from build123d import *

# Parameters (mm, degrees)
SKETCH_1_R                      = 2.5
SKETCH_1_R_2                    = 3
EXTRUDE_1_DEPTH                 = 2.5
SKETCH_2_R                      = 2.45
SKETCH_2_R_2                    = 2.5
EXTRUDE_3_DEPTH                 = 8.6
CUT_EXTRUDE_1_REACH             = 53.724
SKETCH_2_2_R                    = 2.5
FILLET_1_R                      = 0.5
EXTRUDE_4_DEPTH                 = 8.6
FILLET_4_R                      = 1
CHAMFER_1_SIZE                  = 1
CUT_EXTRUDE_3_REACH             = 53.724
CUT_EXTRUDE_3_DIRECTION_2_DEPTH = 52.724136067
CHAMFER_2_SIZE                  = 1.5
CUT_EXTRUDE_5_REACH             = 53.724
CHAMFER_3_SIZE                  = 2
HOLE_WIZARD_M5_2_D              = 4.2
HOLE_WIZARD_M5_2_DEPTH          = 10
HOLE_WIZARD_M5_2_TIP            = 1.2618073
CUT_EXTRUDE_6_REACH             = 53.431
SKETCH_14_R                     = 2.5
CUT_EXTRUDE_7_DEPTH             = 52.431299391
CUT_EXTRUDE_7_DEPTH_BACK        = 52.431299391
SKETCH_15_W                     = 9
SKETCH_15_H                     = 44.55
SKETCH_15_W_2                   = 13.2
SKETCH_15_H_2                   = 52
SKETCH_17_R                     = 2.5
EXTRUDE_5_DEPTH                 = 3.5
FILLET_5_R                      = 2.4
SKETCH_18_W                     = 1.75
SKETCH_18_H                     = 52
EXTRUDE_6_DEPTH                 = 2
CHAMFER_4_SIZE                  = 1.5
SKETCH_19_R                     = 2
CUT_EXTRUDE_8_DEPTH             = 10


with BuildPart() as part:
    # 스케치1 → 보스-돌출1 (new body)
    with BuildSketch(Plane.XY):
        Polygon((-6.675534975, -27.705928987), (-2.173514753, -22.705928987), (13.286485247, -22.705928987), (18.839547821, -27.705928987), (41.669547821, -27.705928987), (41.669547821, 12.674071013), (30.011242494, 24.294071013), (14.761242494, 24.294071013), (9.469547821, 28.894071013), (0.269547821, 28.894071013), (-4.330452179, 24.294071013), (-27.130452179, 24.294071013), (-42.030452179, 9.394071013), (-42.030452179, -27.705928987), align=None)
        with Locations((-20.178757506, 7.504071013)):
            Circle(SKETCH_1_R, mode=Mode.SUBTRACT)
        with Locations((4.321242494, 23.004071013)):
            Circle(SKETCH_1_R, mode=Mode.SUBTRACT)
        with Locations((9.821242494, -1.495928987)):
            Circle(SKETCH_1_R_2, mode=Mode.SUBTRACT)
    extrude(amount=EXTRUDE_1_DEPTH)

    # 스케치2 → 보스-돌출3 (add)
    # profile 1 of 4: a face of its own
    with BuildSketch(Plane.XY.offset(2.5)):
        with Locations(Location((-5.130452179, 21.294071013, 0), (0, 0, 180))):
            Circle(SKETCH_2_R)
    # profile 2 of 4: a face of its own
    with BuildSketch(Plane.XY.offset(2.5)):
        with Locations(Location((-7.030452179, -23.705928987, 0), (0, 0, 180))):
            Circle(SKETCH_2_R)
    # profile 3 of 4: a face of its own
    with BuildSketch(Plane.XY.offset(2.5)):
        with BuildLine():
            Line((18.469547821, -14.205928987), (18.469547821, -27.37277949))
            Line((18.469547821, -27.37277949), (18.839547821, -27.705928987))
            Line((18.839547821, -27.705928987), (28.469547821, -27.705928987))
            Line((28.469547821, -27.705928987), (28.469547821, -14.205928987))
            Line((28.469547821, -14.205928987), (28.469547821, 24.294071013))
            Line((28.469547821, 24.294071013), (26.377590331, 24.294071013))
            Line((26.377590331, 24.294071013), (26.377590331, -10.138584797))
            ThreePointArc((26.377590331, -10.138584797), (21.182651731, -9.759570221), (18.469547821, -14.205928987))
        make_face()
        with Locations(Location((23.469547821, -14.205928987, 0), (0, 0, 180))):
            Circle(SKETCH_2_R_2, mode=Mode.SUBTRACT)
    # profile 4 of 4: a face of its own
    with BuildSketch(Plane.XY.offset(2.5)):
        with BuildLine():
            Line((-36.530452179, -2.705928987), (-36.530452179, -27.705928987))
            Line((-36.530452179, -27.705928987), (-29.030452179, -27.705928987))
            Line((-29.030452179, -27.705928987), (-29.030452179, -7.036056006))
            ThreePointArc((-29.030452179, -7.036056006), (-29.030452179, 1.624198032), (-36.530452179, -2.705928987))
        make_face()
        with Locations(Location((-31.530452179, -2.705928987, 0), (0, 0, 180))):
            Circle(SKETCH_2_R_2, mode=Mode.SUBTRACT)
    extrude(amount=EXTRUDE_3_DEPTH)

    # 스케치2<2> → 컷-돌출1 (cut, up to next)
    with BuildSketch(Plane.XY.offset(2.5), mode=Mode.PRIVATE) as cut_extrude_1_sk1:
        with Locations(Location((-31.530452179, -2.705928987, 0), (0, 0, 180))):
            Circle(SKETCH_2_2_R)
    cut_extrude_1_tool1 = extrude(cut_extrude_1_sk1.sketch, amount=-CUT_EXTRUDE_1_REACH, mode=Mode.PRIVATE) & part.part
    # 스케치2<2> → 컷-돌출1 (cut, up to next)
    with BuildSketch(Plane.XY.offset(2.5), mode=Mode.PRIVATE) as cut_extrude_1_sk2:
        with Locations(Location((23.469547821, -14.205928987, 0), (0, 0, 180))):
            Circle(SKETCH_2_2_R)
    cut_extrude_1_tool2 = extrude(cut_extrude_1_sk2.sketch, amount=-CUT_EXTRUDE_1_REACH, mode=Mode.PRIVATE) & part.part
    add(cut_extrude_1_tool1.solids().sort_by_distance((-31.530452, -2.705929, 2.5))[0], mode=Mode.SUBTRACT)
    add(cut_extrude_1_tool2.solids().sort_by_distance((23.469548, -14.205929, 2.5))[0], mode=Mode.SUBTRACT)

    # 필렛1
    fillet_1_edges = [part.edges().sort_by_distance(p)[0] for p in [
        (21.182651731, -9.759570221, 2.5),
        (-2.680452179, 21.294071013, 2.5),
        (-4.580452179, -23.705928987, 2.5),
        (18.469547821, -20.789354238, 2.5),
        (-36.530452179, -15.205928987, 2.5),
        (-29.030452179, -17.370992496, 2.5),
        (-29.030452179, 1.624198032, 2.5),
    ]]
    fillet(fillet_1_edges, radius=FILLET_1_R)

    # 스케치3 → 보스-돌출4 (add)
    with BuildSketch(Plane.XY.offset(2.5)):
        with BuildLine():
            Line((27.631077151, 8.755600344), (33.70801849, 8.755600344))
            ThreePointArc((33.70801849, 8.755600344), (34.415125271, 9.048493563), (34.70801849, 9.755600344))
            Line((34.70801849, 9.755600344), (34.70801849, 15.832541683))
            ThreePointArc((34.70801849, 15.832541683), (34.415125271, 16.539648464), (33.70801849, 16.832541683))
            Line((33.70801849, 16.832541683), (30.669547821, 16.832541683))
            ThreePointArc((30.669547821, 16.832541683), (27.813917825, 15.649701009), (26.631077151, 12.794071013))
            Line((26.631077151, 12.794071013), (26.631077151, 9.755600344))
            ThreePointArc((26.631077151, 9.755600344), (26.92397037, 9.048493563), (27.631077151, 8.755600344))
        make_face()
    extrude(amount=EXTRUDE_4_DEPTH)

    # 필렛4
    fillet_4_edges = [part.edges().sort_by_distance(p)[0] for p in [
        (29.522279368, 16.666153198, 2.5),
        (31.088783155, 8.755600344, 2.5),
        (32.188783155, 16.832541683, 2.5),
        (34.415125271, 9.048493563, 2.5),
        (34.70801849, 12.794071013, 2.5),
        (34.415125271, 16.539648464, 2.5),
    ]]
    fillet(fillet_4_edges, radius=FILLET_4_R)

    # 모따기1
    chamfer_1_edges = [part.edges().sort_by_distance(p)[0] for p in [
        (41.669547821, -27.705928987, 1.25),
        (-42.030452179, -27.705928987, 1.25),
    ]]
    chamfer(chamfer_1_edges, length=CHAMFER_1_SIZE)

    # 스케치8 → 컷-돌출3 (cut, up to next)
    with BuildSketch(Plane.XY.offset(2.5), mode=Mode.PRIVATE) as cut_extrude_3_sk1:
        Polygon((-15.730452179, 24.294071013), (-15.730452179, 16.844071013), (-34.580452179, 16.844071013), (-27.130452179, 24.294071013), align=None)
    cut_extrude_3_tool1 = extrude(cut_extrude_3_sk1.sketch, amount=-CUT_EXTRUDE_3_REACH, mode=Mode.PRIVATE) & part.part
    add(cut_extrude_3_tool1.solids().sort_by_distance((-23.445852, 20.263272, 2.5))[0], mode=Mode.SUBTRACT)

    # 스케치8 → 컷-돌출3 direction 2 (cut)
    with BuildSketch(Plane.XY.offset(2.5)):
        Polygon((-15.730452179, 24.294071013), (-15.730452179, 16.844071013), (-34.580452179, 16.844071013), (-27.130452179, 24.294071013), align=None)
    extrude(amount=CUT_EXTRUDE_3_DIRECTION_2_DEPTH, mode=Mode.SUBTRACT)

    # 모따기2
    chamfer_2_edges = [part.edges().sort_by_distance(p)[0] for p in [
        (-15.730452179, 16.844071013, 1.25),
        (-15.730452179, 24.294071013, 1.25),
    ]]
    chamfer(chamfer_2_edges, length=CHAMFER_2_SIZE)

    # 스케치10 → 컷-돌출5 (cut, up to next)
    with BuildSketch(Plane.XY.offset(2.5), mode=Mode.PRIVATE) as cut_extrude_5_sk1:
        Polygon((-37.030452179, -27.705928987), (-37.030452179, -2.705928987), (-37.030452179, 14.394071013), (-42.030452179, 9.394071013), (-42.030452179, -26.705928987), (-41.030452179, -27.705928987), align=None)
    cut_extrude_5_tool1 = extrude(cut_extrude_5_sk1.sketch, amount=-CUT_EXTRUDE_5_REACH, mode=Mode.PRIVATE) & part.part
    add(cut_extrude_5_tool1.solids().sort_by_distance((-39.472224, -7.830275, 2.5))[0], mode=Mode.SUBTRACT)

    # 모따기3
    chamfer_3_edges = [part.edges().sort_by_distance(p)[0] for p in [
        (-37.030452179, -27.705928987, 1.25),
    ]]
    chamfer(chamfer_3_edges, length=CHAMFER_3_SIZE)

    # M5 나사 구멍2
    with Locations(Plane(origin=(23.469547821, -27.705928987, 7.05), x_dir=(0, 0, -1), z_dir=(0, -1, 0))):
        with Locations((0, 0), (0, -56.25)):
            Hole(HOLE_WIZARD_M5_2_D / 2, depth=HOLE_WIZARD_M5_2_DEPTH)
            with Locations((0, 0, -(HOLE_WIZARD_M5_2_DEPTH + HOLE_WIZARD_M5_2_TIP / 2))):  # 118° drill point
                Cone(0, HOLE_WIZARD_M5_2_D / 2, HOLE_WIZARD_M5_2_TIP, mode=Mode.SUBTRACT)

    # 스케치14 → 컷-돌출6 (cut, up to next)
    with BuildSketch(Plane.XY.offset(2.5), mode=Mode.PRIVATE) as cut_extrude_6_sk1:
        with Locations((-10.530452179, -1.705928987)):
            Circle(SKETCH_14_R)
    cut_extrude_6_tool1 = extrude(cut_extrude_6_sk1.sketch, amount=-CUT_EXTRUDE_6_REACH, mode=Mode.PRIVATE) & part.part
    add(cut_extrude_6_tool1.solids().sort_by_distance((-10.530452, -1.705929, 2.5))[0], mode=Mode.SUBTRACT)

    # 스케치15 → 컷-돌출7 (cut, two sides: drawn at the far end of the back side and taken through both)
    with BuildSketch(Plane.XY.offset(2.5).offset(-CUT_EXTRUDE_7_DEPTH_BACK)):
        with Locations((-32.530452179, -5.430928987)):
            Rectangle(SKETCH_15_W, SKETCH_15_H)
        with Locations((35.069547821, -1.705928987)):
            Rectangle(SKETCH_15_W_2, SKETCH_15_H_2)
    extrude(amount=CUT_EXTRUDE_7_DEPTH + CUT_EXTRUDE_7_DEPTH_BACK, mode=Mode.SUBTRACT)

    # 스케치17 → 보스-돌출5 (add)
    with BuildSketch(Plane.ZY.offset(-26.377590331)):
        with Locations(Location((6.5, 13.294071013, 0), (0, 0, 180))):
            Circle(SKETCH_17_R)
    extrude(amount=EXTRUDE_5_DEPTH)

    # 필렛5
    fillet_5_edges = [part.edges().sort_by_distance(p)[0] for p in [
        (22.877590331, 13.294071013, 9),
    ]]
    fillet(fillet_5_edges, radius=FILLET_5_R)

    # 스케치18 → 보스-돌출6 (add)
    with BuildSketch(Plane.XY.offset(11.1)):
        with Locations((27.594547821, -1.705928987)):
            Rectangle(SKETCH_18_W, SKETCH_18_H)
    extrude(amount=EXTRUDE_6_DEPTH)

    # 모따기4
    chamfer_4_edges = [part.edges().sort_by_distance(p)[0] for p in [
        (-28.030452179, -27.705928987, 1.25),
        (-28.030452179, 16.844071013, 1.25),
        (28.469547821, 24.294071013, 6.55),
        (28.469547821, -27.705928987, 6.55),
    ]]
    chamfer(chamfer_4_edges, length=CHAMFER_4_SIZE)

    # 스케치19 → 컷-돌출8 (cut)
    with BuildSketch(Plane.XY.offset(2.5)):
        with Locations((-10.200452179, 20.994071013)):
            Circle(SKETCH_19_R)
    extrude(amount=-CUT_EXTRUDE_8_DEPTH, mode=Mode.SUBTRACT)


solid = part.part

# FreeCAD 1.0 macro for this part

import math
import FreeCAD as App
import Part
import Sketcher

V = App.Vector
Q = App.Units.Quantity


def edges_at(feature, points):
    """Names of the edges that pass closest to the given points."""
    edges = feature.Shape.Edges
    near = lambda p: min(range(len(edges)), key=lambda i: edges[i].distToShape(Part.Vertex(*p))[0])
    return sorted({f"Edge{near(p) + 1}" for p in points})

doc = App.newDocument("Part")
body = doc.addObject("PartDesign::Body", "Body")

# Sketch on XY plane
sketch1 = body.newObject("Sketcher::SketchObject", "Sketch")
sketch1.AttachmentSupport = (doc.getObject("XY_Plane"), [""])
sketch1.MapMode = "FlatFace"
sketch1.addGeometry([
    Part.LineSegment(V(-6.7, -27.7, 0), V(-2.2, -22.7, 0)),  # 0
    Part.LineSegment(V(-2.2, -22.7, 0), V(13.3, -22.7, 0)),  # 1
    Part.LineSegment(V(13.3, -22.7, 0), V(18.8, -27.7, 0)),  # 2
    Part.LineSegment(V(18.8, -27.7, 0), V(41.7, -27.7, 0)),  # 3
    Part.LineSegment(V(41.7, -27.7, 0), V(41.7, 12.7, 0)),  # 4
    Part.LineSegment(V(41.7, 12.7, 0), V(30, 24.3, 0)),  # 5
    Part.LineSegment(V(30, 24.3, 0), V(14.8, 24.3, 0)),  # 6
    Part.LineSegment(V(14.8, 24.3, 0), V(9.5, 28.9, 0)),  # 7
    Part.LineSegment(V(9.5, 28.9, 0), V(0.3, 28.9, 0)),  # 8
    Part.LineSegment(V(0.3, 28.9, 0), V(-4.3, 24.3, 0)),  # 9
    Part.LineSegment(V(-4.3, 24.3, 0), V(-27.1, 24.3, 0)),  # 10
    Part.LineSegment(V(-27.1, 24.3, 0), V(-42, 9.4, 0)),  # 11
    Part.LineSegment(V(-42, 9.4, 0), V(-42, -27.7, 0)),  # 12
    Part.LineSegment(V(-42, -27.7, 0), V(-6.7, -27.7, 0)),  # 13
    Part.Circle(V(-20.2, 7.5, 0), V(0, 0, 1), 2.5),  # 14
    Part.Circle(V(9.8, -1.5, 0), V(0, 0, 1), 3),  # 15
    Part.Circle(V(4.3, 23, 0), V(0, 0, 1), 2.5),  # 16
], False)
sketch1.addConstraint([
    Sketcher.Constraint("Coincident", 0, 2, 1, 1),
    Sketcher.Constraint("Coincident", 1, 2, 2, 1),
    Sketcher.Constraint("Coincident", 2, 2, 3, 1),
    Sketcher.Constraint("Coincident", 3, 2, 4, 1),
    Sketcher.Constraint("Coincident", 4, 2, 5, 1),
    Sketcher.Constraint("Coincident", 5, 2, 6, 1),
    Sketcher.Constraint("Coincident", 6, 2, 7, 1),
    Sketcher.Constraint("Coincident", 7, 2, 8, 1),
    Sketcher.Constraint("Coincident", 8, 2, 9, 1),
    Sketcher.Constraint("Coincident", 9, 2, 10, 1),
    Sketcher.Constraint("Coincident", 10, 2, 11, 1),
    Sketcher.Constraint("Coincident", 11, 2, 12, 1),
    Sketcher.Constraint("Coincident", 12, 2, 13, 1),
    Sketcher.Constraint("Coincident", 13, 2, 0, 1),
    Sketcher.Constraint("Horizontal", 1),
    Sketcher.Constraint("Horizontal", 3),
    Sketcher.Constraint("Vertical", 4),
    Sketcher.Constraint("Horizontal", 6),
    Sketcher.Constraint("Horizontal", 8),
    Sketcher.Constraint("Horizontal", 10),
    Sketcher.Constraint("Vertical", 12),
    Sketcher.Constraint("Horizontal", 13),
    Sketcher.Constraint("Equal", 14, 16),
    Sketcher.Constraint("Perpendicular", 0, 2),
    Sketcher.Constraint("Parallel", 9, 11),
    Sketcher.Constraint("Horizontal", 6, 2, 9, 2),
    Sketcher.Constraint("Horizontal", 3, 2, 12, 2),
    Sketcher.Constraint("Diameter", 14, 5.0),
    Sketcher.Constraint("Diameter", 15, 6.0),
    Sketcher.Constraint("Angle", 0, Q("48 deg")),
    Sketcher.Constraint("Angle", 7, Q("139 deg")),
    Sketcher.Constraint("Angle", 9, Q("-135 deg")),
    Sketcher.Constraint("DistanceX", 8, 2, 8, 1, 9.2),
    Sketcher.Constraint("DistanceX", 10, 2, 10, 1, 22.8),
    Sketcher.Constraint("DistanceY", 12, 2, 12, 1, 37.1),
    Sketcher.Constraint("DistanceX", 14, 3, 15, 3, 30.0),
    Sketcher.Constraint("DistanceY", 15, 3, 14, 3, 9.0),
    Sketcher.Constraint("DistanceY", 2, 2, 1, 2, 5.0),
    Sketcher.Constraint("DistanceY", 1, 2, 5, 2, 47.0),
    Sketcher.Constraint("DistanceX", 1, 1, 1, 2, 15.46),
    Sketcher.Constraint("DistanceX", 3, 1, 3, 2, 22.83),
    Sketcher.Constraint("DistanceX", 6, 2, 6, 1, 15.25),
    Sketcher.Constraint("DistanceY", 4, 1, 4, 2, 40.38),
    Sketcher.Constraint("DistanceX", 16, 3, 15, 3, 5.5),
    Sketcher.Constraint("DistanceY", 15, 3, 16, 3, 24.5),
    Sketcher.Constraint("DistanceY", 6, 2, 7, 2, 4.6),
    Sketcher.Constraint("DistanceX", 7, 2, 4, 2, 32.2),
    Sketcher.Constraint("DistanceY", 0, 2, 15, 3, 21.21),
    Sketcher.Constraint("DistanceX", 16, 3, 5, 2, 25.69),
    Sketcher.Constraint("DistanceY", -1, 1, 14, 3, 7.504071),
    Sketcher.Constraint("DistanceX", 14, 3, -1, 1, 20.178758),
])
pad1 = body.newObject("PartDesign::Pad", "Pad")
pad1.Profile = sketch1
pad1.Length = 2.5

# Sketch on XY plane
sketch2 = body.newObject("Sketcher::SketchObject", "Sketch001")
sketch2.AttachmentSupport = (doc.getObject("XY_Plane"), [""])
sketch2.MapMode = "FlatFace"
sketch2.AttachmentOffset = App.Placement(V(0, 0, 2.5), App.Rotation())
sketch2.addGeometry([
    Part.Circle(V(-5.13, 21.29, 0), V(0, 0, 1), 2.45),  # 0
    Part.Circle(V(-7.03, -23.71, 0), V(0, 0, 1), 2.45),  # 1
    Part.LineSegment(V(18.47, -14.21, 0), V(18.47, -27.37, 0)),  # 2
    Part.LineSegment(V(18.47, -27.37, 0), V(18.84, -27.71, 0)),  # 3
    Part.LineSegment(V(18.84, -27.71, 0), V(28.47, -27.71, 0)),  # 4
    Part.LineSegment(V(28.47, -27.71, 0), V(28.47, 24.29, 0)),  # 5
    Part.LineSegment(V(28.47, 24.29, 0), V(26.38, 24.29, 0)),  # 6
    Part.LineSegment(V(26.38, 24.29, 0), V(26.38, -10.14, 0)),  # 7
    Part.ArcOfCircle(Part.Circle(V(23.47, -14.21, 0), V(0, 0, 1), 5), math.radians(54), math.radians(180)),  # 8
    Part.Circle(V(23.47, -14.21, 0), V(0, 0, 1), 2.5),  # 9
    Part.LineSegment(V(-36.53, -2.71, 0), V(-36.53, -27.71, 0)),  # 10
    Part.LineSegment(V(-36.53, -27.71, 0), V(-29.03, -27.71, 0)),  # 11
    Part.LineSegment(V(-29.03, -27.71, 0), V(-29.03, -7.04, 0)),  # 12
    Part.ArcOfCircle(Part.Circle(V(-31.53, -2.71, 0), V(0, 0, 1), 5), math.radians(-60), math.radians(180)),  # 13
    Part.Circle(V(-31.53, -2.71, 0), V(0, 0, 1), 2.5),  # 14
], False)
sketch2.addConstraint([
    Sketcher.Constraint("Coincident", 2, 2, 3, 1),
    Sketcher.Constraint("Coincident", 3, 2, 4, 1),
    Sketcher.Constraint("Coincident", 4, 2, 5, 1),
    Sketcher.Constraint("Coincident", 5, 2, 6, 1),
    Sketcher.Constraint("Coincident", 6, 2, 7, 1),
    Sketcher.Constraint("Coincident", 7, 2, 8, 1),
    Sketcher.Constraint("Tangent", 8, 2, 2, 1),
    Sketcher.Constraint("Coincident", 10, 2, 11, 1),
    Sketcher.Constraint("Coincident", 11, 2, 12, 1),
    Sketcher.Constraint("Coincident", 12, 2, 13, 1),
    Sketcher.Constraint("Tangent", 13, 2, 10, 1),
    Sketcher.Constraint("Vertical", 2),
    Sketcher.Constraint("Horizontal", 4),
    Sketcher.Constraint("Vertical", 5),
    Sketcher.Constraint("Horizontal", 6),
    Sketcher.Constraint("Vertical", 7),
    Sketcher.Constraint("Vertical", 10),
    Sketcher.Constraint("Horizontal", 11),
    Sketcher.Constraint("Vertical", 12),
    Sketcher.Constraint("Coincident", 9, 3, 8, 3),
    Sketcher.Constraint("Coincident", 14, 3, 13, 3),
    Sketcher.Constraint("Equal", 0, 1),
    Sketcher.Constraint("Equal", 8, 13),
    Sketcher.Constraint("Equal", 9, 14),
    Sketcher.Constraint("Horizontal", 4, 2, 10, 2),
    Sketcher.Constraint("Diameter", 9, 5.0),
    Sketcher.Constraint("Radius", 8, 5.0),
    Sketcher.Constraint("Diameter", 0, 4.9),
    Sketcher.Constraint("DistanceY", 5, 1, 5, 2, 52.0),
    Sketcher.Constraint("DistanceY", 10, 2, 10, 1, 25.0),
    Sketcher.Constraint("Angle", 3, Q("-42 deg")),
    Sketcher.Constraint("DistanceX", 11, 1, 11, 2, 7.5),
    Sketcher.Constraint("DistanceY", 1, 3, 0, 3, 45.0),
    Sketcher.Constraint("DistanceY", 1, 3, 13, 3, 21.0),
    Sketcher.Constraint("DistanceX", 13, 3, 8, 3, 55.0),
    Sketcher.Constraint("DistanceX", 2, 2, 4, 2, 10.0),
    Sketcher.Constraint("DistanceX", 11, 2, 1, 3, 22.0),
    Sketcher.Constraint("DistanceX", 4, 1, 4, 2, 9.63),
    Sketcher.Constraint("DistanceX", 1, 3, 0, 3, 1.9),
    Sketcher.Constraint("DistanceY", 1, 3, 8, 3, 9.5),
    Sketcher.Constraint("DistanceX", 6, 2, 6, 1, 2.091957),
    Sketcher.Constraint("DistanceY", -1, 1, 0, 3, 21.294071),
    Sketcher.Constraint("DistanceX", -1, 1, 6, 2, 26.37759),
])
pad2 = body.newObject("PartDesign::Pad", "Pad001")
pad2.Profile = sketch2
pad2.Length = 8.6

# Sketch on XY plane
sketch3 = body.newObject("Sketcher::SketchObject", "Sketch002")
sketch3.AttachmentSupport = (doc.getObject("XY_Plane"), [""])
sketch3.MapMode = "FlatFace"
sketch3.AttachmentOffset = App.Placement(V(0, 0, 2.5), App.Rotation())
sketch3.addGeometry(Part.Circle(V(-31.5, -2.7, 0), V(0, 0, 1), 2.5), False)
sketch3.addConstraint([
    Sketcher.Constraint("Diameter", 0, 5.0),
    Sketcher.Constraint("DistanceY", 0, 3, -1, 1, 2.705929),
    Sketcher.Constraint("DistanceX", 0, 3, -1, 1, 31.530452),
])
pocket1 = body.newObject("PartDesign::Pocket", "Pocket")
pocket1.Profile = sketch3
pocket1.Type = "UpToFirst"

# Sketch on XY plane
sketch4 = body.newObject("Sketcher::SketchObject", "Sketch003")
sketch4.AttachmentSupport = (doc.getObject("XY_Plane"), [""])
sketch4.MapMode = "FlatFace"
sketch4.AttachmentOffset = App.Placement(V(0, 0, 2.5), App.Rotation())
sketch4.addGeometry(Part.Circle(V(23.5, -14.2, 0), V(0, 0, 1), 2.5), False)
sketch4.addConstraint([
    Sketcher.Constraint("Diameter", 0, 5.0),
    Sketcher.Constraint("DistanceY", 0, 3, -1, 1, 14.205929),
    Sketcher.Constraint("DistanceX", -1, 1, 0, 3, 23.469548),
])
pocket2 = body.newObject("PartDesign::Pocket", "Pocket001")
pocket2.Profile = sketch4
pocket2.Type = "UpToFirst"
doc.recompute()

fillet = body.newObject("PartDesign::Fillet", "Fillet")
fillet.Base = (pocket2, edges_at(pocket2, [
    (21.183, -9.76, 2.5),
    (-2.68, 21.294, 2.5),
    (-4.58, -23.706, 2.5),
    (18.47, -20.789, 2.5),
    (-36.53, -15.206, 2.5),
    (-29.03, -17.371, 2.5),
    (-29.03, 1.624, 2.5),
]))
fillet.Radius = 0.5

# Sketch on XY plane
sketch5 = body.newObject("Sketcher::SketchObject", "Sketch004")
sketch5.AttachmentSupport = (doc.getObject("XY_Plane"), [""])
sketch5.MapMode = "FlatFace"
sketch5.AttachmentOffset = App.Placement(V(0, 0, 2.5), App.Rotation())
sketch5.addGeometry([
    Part.LineSegment(V(27.6, 8.8, 0), V(33.7, 8.8, 0)),  # 0
    Part.ArcOfCircle(Part.Circle(V(33.7, 9.8, 0), V(0, 0, 1), 1), math.radians(-90), math.radians(0)),  # 1
    Part.LineSegment(V(34.7, 9.8, 0), V(34.7, 15.8, 0)),  # 2
    Part.ArcOfCircle(Part.Circle(V(33.7, 15.8, 0), V(0, 0, 1), 1), math.radians(0), math.radians(90)),  # 3
    Part.LineSegment(V(33.7, 16.8, 0), V(30.7, 16.8, 0)),  # 4
    Part.ArcOfCircle(Part.Circle(V(30.7, 12.8, 0), V(0, 0, 1), 4), math.radians(90), math.radians(180)),  # 5
    Part.LineSegment(V(26.6, 12.8, 0), V(26.6, 9.8, 0)),  # 6
    Part.ArcOfCircle(Part.Circle(V(27.6, 9.8, 0), V(0, 0, 1), 1), math.radians(-180), math.radians(-90)),  # 7
], False)
sketch5.addConstraint([
    Sketcher.Constraint("Tangent", 0, 2, 1, 1),
    Sketcher.Constraint("Tangent", 1, 2, 2, 1),
    Sketcher.Constraint("Tangent", 2, 2, 3, 1),
    Sketcher.Constraint("Tangent", 3, 2, 4, 1),
    Sketcher.Constraint("Tangent", 4, 2, 5, 1),
    Sketcher.Constraint("Tangent", 5, 2, 6, 1),
    Sketcher.Constraint("Tangent", 6, 2, 7, 1),
    Sketcher.Constraint("Tangent", 7, 2, 0, 1),
    Sketcher.Constraint("Horizontal", 0),
    Sketcher.Constraint("Vertical", 2),
    Sketcher.Constraint("Horizontal", 4),
    Sketcher.Constraint("Vertical", 6),
    Sketcher.Constraint("Equal", 1, 3),
    Sketcher.Constraint("Equal", 3, 7),
    Sketcher.Constraint("Equal", 0, 2),
    Sketcher.Constraint("Radius", 1, 1.0),
    Sketcher.Constraint("Radius", 5, 4.038471),
    Sketcher.Constraint("DistanceX", 0, 1, 0, 2, 6.076941),
    Sketcher.Constraint("DistanceY", -1, 1, 1, 3, 9.7556),
    Sketcher.Constraint("DistanceX", -1, 1, 1, 3, 33.708018),
])
pad3 = body.newObject("PartDesign::Pad", "Pad002")
pad3.Profile = sketch5
pad3.Length = 8.6
doc.recompute()

fillet2 = body.newObject("PartDesign::Fillet", "Fillet001")
fillet2.Base = (pad3, edges_at(pad3, [
    (29.522, 16.666, 2.5),
    (31.089, 8.756, 2.5),
    (32.189, 16.833, 2.5),
    (34.415, 9.048, 2.5),
    (34.708, 12.794, 2.5),
    (34.415, 16.54, 2.5),
]))
fillet2.Radius = 1
doc.recompute()

chamfer = body.newObject("PartDesign::Chamfer", "Chamfer")
chamfer.Base = (fillet2, edges_at(fillet2, [(41.67, -27.706, 1.25), (-42.03, -27.706, 1.25)]))
chamfer.Size = 1

# Sketch on XY plane
sketch6 = body.newObject("Sketcher::SketchObject", "Sketch005")
sketch6.AttachmentSupport = (doc.getObject("XY_Plane"), [""])
sketch6.MapMode = "FlatFace"
sketch6.AttachmentOffset = App.Placement(V(0, 0, 2.5), App.Rotation())
sketch6.addGeometry([
    Part.LineSegment(V(-16, 17, 0), V(-16, 24, 0)),
    Part.LineSegment(V(-16, 24, 0), V(-27, 24, 0)),
    Part.LineSegment(V(-27, 24, 0), V(-35, 17, 0)),
    Part.LineSegment(V(-35, 17, 0), V(-16, 17, 0)),
], False)
sketch6.addConstraint([
    Sketcher.Constraint("Coincident", 0, 2, 1, 1),
    Sketcher.Constraint("Coincident", 1, 2, 2, 1),
    Sketcher.Constraint("Coincident", 2, 2, 3, 1),
    Sketcher.Constraint("Coincident", 3, 2, 0, 1),
    Sketcher.Constraint("Vertical", 0),
    Sketcher.Constraint("Horizontal", 1),
    Sketcher.Constraint("Horizontal", 3),
    Sketcher.Constraint("Angle", 2, Q("-135 deg")),
    Sketcher.Constraint("DistanceX", 1, 2, 1, 1, 11.4),
    Sketcher.Constraint("DistanceX", 3, 1, 3, 2, 18.85),
    Sketcher.Constraint("DistanceY", -1, 1, 0, 2, 24.294071),
    Sketcher.Constraint("DistanceX", 0, 2, -1, 1, 15.730452),
])
pocket3 = body.newObject("PartDesign::Pocket", "Pocket002")
pocket3.Profile = sketch6
pocket3.Type = "UpToFirst"

# Sketch on XY plane
sketch7 = body.newObject("Sketcher::SketchObject", "Sketch006")
sketch7.AttachmentSupport = (doc.getObject("XY_Plane"), [""])
sketch7.MapMode = "FlatFace"
sketch7.AttachmentOffset = App.Placement(V(0, 0, 2.5), App.Rotation())
sketch7.addGeometry([
    Part.LineSegment(V(-16, 17, 0), V(-16, 24, 0)),
    Part.LineSegment(V(-16, 24, 0), V(-27, 24, 0)),
    Part.LineSegment(V(-27, 24, 0), V(-35, 17, 0)),
    Part.LineSegment(V(-35, 17, 0), V(-16, 17, 0)),
], False)
sketch7.addConstraint([
    Sketcher.Constraint("Coincident", 0, 2, 1, 1),
    Sketcher.Constraint("Coincident", 1, 2, 2, 1),
    Sketcher.Constraint("Coincident", 2, 2, 3, 1),
    Sketcher.Constraint("Coincident", 3, 2, 0, 1),
    Sketcher.Constraint("Vertical", 0),
    Sketcher.Constraint("Horizontal", 1),
    Sketcher.Constraint("Horizontal", 3),
    Sketcher.Constraint("Angle", 2, Q("-135 deg")),
    Sketcher.Constraint("DistanceX", 1, 2, 1, 1, 11.4),
    Sketcher.Constraint("DistanceX", 3, 1, 3, 2, 18.85),
    Sketcher.Constraint("DistanceY", -1, 1, 0, 2, 24.294071),
    Sketcher.Constraint("DistanceX", 0, 2, -1, 1, 15.730452),
])
pocket4 = body.newObject("PartDesign::Pocket", "Pocket003")
pocket4.Profile = sketch7
pocket4.Length = 52.724136
pocket4.Reversed = True
doc.recompute()

chamfer2 = body.newObject("PartDesign::Chamfer", "Chamfer001")
chamfer2.Base = (pocket4, edges_at(pocket4, [(-15.73, 16.844, 1.25), (-15.73, 24.294, 1.25)]))
chamfer2.Size = 1.5

# Sketch on XY plane
sketch8 = body.newObject("Sketcher::SketchObject", "Sketch007")
sketch8.AttachmentSupport = (doc.getObject("XY_Plane"), [""])
sketch8.MapMode = "FlatFace"
sketch8.AttachmentOffset = App.Placement(V(0, 0, 2.5), App.Rotation())
sketch8.addGeometry([
    Part.LineSegment(V(-37, -27.7, 0), V(-37, 14.4, 0)),  # 0
    Part.LineSegment(V(-37, 14.4, 0), V(-42, 9.4, 0)),  # 1
    Part.LineSegment(V(-42, 9.4, 0), V(-42, -26.7, 0)),  # 2
    Part.LineSegment(V(-42, -26.7, 0), V(-41, -27.7, 0)),  # 3
    Part.LineSegment(V(-41, -27.7, 0), V(-37, -27.7, 0)),  # 4
], False)
sketch8.addConstraint([
    Sketcher.Constraint("Coincident", 0, 2, 1, 1),
    Sketcher.Constraint("Coincident", 1, 2, 2, 1),
    Sketcher.Constraint("Coincident", 2, 2, 3, 1),
    Sketcher.Constraint("Coincident", 3, 2, 4, 1),
    Sketcher.Constraint("Coincident", 4, 2, 0, 1),
    Sketcher.Constraint("Vertical", 0),
    Sketcher.Constraint("Vertical", 2),
    Sketcher.Constraint("Horizontal", 4),
    Sketcher.Constraint("Perpendicular", 1, 3),
    Sketcher.Constraint("DistanceX", 4, 1, 4, 2, 4.0),
    Sketcher.Constraint("Angle", 1, Q("-135 deg")),
    Sketcher.Constraint("DistanceY", 0, 1, 0, 2, 42.1),
    Sketcher.Constraint("DistanceY", 2, 2, 2, 1, 36.1),
    Sketcher.Constraint("DistanceY", -1, 1, 0, 2, 14.394071),
    Sketcher.Constraint("DistanceX", 0, 2, -1, 1, 37.030452),
])
pocket5 = body.newObject("PartDesign::Pocket", "Pocket004")
pocket5.Profile = sketch8
pocket5.Type = "UpToFirst"
doc.recompute()

chamfer3 = body.newObject("PartDesign::Chamfer", "Chamfer002")
chamfer3.Base = (pocket5, edges_at(pocket5, [(-37.03, -27.706, 1.25)]))
chamfer3.Size = 2

# Sketch on XZ plane
sketch9 = body.newObject("Sketcher::SketchObject", "Sketch008")
sketch9.AttachmentSupport = (doc.getObject("XZ_Plane"), [""])
sketch9.MapMode = "FlatFace"
sketch9.AttachmentOffset = App.Placement(V(0, 0, 27.705929), App.Rotation())
sketch9.addGeometry([
    Part.Circle(V(23.5, 7, 0), V(0, 0, 1), 2.1),
    Part.Circle(V(-32.8, 7, 0), V(0, 0, 1), 2.1),
], False)
sketch9.addConstraint([
    Sketcher.Constraint("Equal", 0, 1),
    Sketcher.Constraint("Horizontal", 0, 3, 1, 3),
    Sketcher.Constraint("Diameter", 0, 4.2),
    Sketcher.Constraint("DistanceY", -1, 1, 0, 3, 7.05),
    Sketcher.Constraint("DistanceX", 1, 3, 0, 3, 56.25),
    Sketcher.Constraint("DistanceX", -1, 1, 0, 3, 23.469548),
])
doc.recompute()
hole = body.newObject("PartDesign::Hole", "Hole")
hole.Profile = sketch9
hole.ThreadType = "None"
hole.Diameter = 4.2
hole.DepthType = "Dimension"
hole.Depth = 10
hole.DrillPoint = "Angled"
hole.DrillPointAngle = 118

# Sketch on XY plane
sketch10 = body.newObject("Sketcher::SketchObject", "Sketch009")
sketch10.AttachmentSupport = (doc.getObject("XY_Plane"), [""])
sketch10.MapMode = "FlatFace"
sketch10.AttachmentOffset = App.Placement(V(0, 0, 2.5), App.Rotation())
sketch10.addGeometry(Part.Circle(V(-10.5, -1.7, 0), V(0, 0, 1), 2.5), False)
sketch10.addConstraint([
    Sketcher.Constraint("Diameter", 0, 5.0),
    Sketcher.Constraint("DistanceY", 0, 3, -1, 1, 1.705929),
    Sketcher.Constraint("DistanceX", 0, 3, -1, 1, 10.530452),
])
pocket6 = body.newObject("PartDesign::Pocket", "Pocket005")
pocket6.Profile = sketch10
pocket6.Type = "UpToFirst"

# Sketch on XY plane
sketch11 = body.newObject("Sketcher::SketchObject", "Sketch010")
sketch11.AttachmentSupport = (doc.getObject("XY_Plane"), [""])
sketch11.MapMode = "FlatFace"
sketch11.AttachmentOffset = App.Placement(V(0, 0, 2.5), App.Rotation())
sketch11.addGeometry([
    Part.LineSegment(V(-37, 17, 0), V(-37, -28, 0)),  # 0
    Part.LineSegment(V(-37, -28, 0), V(-28, -28, 0)),  # 1
    Part.LineSegment(V(-28, -28, 0), V(-28, 17, 0)),  # 2
    Part.LineSegment(V(-28, 17, 0), V(-37, 17, 0)),  # 3
    Part.LineSegment(V(28, 24, 0), V(28, -28, 0)),  # 4
    Part.LineSegment(V(28, -28, 0), V(42, -28, 0)),  # 5
    Part.LineSegment(V(42, -28, 0), V(42, 24, 0)),  # 6
    Part.LineSegment(V(42, 24, 0), V(28, 24, 0)),  # 7
], False)
sketch11.addConstraint([
    Sketcher.Constraint("Coincident", 0, 2, 1, 1),
    Sketcher.Constraint("Coincident", 1, 2, 2, 1),
    Sketcher.Constraint("Coincident", 2, 2, 3, 1),
    Sketcher.Constraint("Coincident", 3, 2, 0, 1),
    Sketcher.Constraint("Coincident", 4, 2, 5, 1),
    Sketcher.Constraint("Coincident", 5, 2, 6, 1),
    Sketcher.Constraint("Coincident", 6, 2, 7, 1),
    Sketcher.Constraint("Coincident", 7, 2, 4, 1),
    Sketcher.Constraint("Vertical", 0),
    Sketcher.Constraint("Horizontal", 1),
    Sketcher.Constraint("Vertical", 2),
    Sketcher.Constraint("Horizontal", 3),
    Sketcher.Constraint("Vertical", 4),
    Sketcher.Constraint("Horizontal", 5),
    Sketcher.Constraint("Vertical", 6),
    Sketcher.Constraint("Horizontal", 7),
    Sketcher.Constraint("Horizontal", 1, 2, 4, 2),
    Sketcher.Constraint("DistanceX", 1, 1, 1, 2, 9.0),
    Sketcher.Constraint("DistanceY", 4, 2, 4, 1, 52.0),
    Sketcher.Constraint("DistanceX", 5, 1, 5, 2, 13.2),
    Sketcher.Constraint("DistanceY", 0, 2, 0, 1, 44.55),
    Sketcher.Constraint("DistanceX", 1, 2, 4, 2, 56.5),
    Sketcher.Constraint("DistanceY", 0, 2, -1, 1, 27.705929),
    Sketcher.Constraint("DistanceX", 0, 2, -1, 1, 37.030452),
])
pocket7 = body.newObject("PartDesign::Pocket", "Pocket006")
pocket7.Profile = sketch11
pocket7.Type = "ThroughAll"
pocket7.Midplane = True

# Sketch on YZ plane
sketch12 = body.newObject("Sketcher::SketchObject", "Sketch011")
sketch12.AttachmentSupport = (doc.getObject("YZ_Plane"), [""])
sketch12.MapMode = "FlatFace"
sketch12.AttachmentOffset = App.Placement(V(0, 0, 26.37759), App.Rotation())
sketch12.addGeometry(Part.Circle(V(13.3, 6.5, 0), V(0, 0, 1), 2.5), False)
sketch12.addConstraint([
    Sketcher.Constraint("Diameter", 0, 5.0),
    Sketcher.Constraint("DistanceY", -1, 1, 0, 3, 6.5),
    Sketcher.Constraint("DistanceX", -1, 1, 0, 3, 13.294071),
])
pad4 = body.newObject("PartDesign::Pad", "Pad003")
pad4.Profile = sketch12
pad4.Length = 3.5
pad4.Reversed = True
doc.recompute()

fillet3 = body.newObject("PartDesign::Fillet", "Fillet002")
fillet3.Base = (pad4, edges_at(pad4, [(22.878, 13.294, 9)]))
fillet3.Radius = 2.4

# Sketch on XY plane
sketch13 = body.newObject("Sketcher::SketchObject", "Sketch012")
sketch13.AttachmentSupport = (doc.getObject("XY_Plane"), [""])
sketch13.MapMode = "FlatFace"
sketch13.AttachmentOffset = App.Placement(V(0, 0, 11.1), App.Rotation())
sketch13.addGeometry([
    Part.LineSegment(V(26.7, 24.3, 0), V(26.7, -27.7, 0)),
    Part.LineSegment(V(26.7, -27.7, 0), V(28.5, -27.7, 0)),
    Part.LineSegment(V(28.5, -27.7, 0), V(28.5, 24.3, 0)),
    Part.LineSegment(V(28.5, 24.3, 0), V(26.7, 24.3, 0)),
], False)
sketch13.addConstraint([
    Sketcher.Constraint("Coincident", 0, 2, 1, 1),
    Sketcher.Constraint("Coincident", 1, 2, 2, 1),
    Sketcher.Constraint("Coincident", 2, 2, 3, 1),
    Sketcher.Constraint("Coincident", 3, 2, 0, 1),
    Sketcher.Constraint("Vertical", 0),
    Sketcher.Constraint("Horizontal", 1),
    Sketcher.Constraint("Vertical", 2),
    Sketcher.Constraint("Horizontal", 3),
    Sketcher.Constraint("DistanceY", 0, 2, 0, 1, 52.0),
    Sketcher.Constraint("DistanceX", 1, 1, 1, 2, 1.75),
    Sketcher.Constraint("DistanceY", 0, 2, -1, 1, 27.705929),
    Sketcher.Constraint("DistanceX", -1, 1, 0, 2, 26.719548),
])
pad5 = body.newObject("PartDesign::Pad", "Pad004")
pad5.Profile = sketch13
pad5.Length = 2
doc.recompute()

chamfer4 = body.newObject("PartDesign::Chamfer", "Chamfer003")
chamfer4.Base = (pad5, edges_at(pad5, [
    (-28.03, -27.706, 1.25),
    (-28.03, 16.844, 1.25),
    (28.47, 24.294, 6.55),
    (28.47, -27.706, 6.55),
]))
chamfer4.Size = 1.5

# Sketch on XY plane
sketch14 = body.newObject("Sketcher::SketchObject", "Sketch013")
sketch14.AttachmentSupport = (doc.getObject("XY_Plane"), [""])
sketch14.MapMode = "FlatFace"
sketch14.AttachmentOffset = App.Placement(V(0, 0, 2.5), App.Rotation())
sketch14.addGeometry(Part.Circle(V(-10.2, 21, 0), V(0, 0, 1), 2), False)
sketch14.addConstraint([
    Sketcher.Constraint("Diameter", 0, 4.0),
    Sketcher.Constraint("DistanceY", -1, 1, 0, 3, 20.994071),
    Sketcher.Constraint("DistanceX", 0, 3, -1, 1, 10.200452),
])
pocket8 = body.newObject("PartDesign::Pocket", "Pocket007")
pocket8.Profile = sketch14
pocket8.Length = 10

doc.recompute()
